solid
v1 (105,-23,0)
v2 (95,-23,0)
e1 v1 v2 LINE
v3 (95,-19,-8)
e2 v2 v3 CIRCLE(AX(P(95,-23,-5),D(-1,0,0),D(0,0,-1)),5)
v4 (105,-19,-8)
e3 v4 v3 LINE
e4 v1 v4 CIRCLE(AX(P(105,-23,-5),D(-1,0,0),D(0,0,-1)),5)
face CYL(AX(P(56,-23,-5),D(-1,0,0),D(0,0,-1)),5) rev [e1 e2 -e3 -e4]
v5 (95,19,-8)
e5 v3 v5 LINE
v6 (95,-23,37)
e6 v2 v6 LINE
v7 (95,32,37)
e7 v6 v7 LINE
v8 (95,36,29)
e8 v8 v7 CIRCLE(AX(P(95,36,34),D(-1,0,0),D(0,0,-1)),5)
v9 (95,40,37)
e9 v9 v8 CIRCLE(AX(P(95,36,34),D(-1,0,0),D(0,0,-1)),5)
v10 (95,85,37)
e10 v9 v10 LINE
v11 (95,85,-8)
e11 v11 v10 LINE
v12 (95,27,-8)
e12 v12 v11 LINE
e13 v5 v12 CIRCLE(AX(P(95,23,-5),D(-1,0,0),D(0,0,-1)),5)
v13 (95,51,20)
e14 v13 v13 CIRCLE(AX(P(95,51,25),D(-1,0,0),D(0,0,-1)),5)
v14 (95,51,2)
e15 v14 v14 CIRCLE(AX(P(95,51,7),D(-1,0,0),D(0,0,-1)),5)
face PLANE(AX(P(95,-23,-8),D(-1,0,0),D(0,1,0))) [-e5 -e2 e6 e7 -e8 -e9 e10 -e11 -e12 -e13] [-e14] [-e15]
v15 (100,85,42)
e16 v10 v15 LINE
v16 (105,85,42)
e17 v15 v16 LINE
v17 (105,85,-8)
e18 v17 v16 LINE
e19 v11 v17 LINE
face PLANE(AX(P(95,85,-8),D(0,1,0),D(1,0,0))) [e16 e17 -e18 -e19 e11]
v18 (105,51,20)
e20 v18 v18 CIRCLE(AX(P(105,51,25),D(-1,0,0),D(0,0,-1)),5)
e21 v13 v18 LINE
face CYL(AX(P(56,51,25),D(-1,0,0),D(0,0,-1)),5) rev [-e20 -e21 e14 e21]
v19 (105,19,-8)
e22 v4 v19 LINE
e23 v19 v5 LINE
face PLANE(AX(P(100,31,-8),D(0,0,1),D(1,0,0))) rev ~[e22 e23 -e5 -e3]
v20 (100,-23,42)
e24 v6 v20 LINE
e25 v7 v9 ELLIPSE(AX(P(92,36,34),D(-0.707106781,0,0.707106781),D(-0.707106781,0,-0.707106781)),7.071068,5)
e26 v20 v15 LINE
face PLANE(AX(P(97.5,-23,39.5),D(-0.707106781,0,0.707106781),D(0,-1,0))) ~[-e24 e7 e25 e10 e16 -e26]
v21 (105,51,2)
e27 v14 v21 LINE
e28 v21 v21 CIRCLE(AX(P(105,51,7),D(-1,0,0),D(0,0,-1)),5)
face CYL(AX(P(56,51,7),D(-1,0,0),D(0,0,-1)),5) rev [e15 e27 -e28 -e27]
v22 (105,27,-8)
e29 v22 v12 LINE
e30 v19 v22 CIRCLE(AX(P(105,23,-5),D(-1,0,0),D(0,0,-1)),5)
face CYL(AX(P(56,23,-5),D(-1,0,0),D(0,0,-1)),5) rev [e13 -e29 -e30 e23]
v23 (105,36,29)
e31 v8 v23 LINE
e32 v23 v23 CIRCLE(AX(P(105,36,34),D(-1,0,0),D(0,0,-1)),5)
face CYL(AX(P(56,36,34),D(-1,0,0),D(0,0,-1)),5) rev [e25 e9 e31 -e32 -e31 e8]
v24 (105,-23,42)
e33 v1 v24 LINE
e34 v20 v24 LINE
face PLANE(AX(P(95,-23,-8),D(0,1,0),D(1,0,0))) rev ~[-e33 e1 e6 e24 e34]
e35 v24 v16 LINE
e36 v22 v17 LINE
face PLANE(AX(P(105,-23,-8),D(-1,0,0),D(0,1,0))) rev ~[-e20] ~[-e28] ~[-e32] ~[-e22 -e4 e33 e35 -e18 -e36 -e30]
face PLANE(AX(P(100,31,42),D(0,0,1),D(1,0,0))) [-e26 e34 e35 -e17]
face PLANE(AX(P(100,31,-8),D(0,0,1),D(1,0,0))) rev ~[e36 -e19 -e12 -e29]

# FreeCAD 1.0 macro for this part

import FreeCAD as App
import Part
import Sketcher
from FreeCAD import Vector


def edges_at(feature, points):
    """Names of the edges that pass closest to the given points."""
    edges = feature.Shape.Edges
    near = lambda p: min(range(len(edges)), key=lambda i: edges[i].distToShape(Part.Vertex(*p))[0])
    return sorted({f"Edge{near(p) + 1}" for p in points})

doc = App.newDocument("Part")
body = doc.addObject("PartDesign::Body", "Body")

# Sketch on YZ plane
sketch1 = body.newObject("Sketcher::SketchObject", "Sketch")
sketch1.AttachmentSupport = (doc.getObject("YZ_Plane"), [""])
sketch1.MapMode = "FlatFace"
sketch1.AttachmentOffset = App.Placement(Vector(0, 0, 24), App.Rotation())
sketch1.addGeometry(Part.Circle(Vector(-51, 25, 0), Vector(0, 0, 1), 5), False)
sketch1.addConstraint(Sketcher.Constraint("Diameter", 0, 10.0))
sketch1.addConstraint(Sketcher.Constraint("DistanceX", 0, 3, -1, 1, 51.0))
sketch1.addConstraint(Sketcher.Constraint("DistanceY", -1, 1, 0, 3, 25.0))
pad1 = body.newObject("PartDesign::Pad", "Pad")
pad1.Profile = sketch1
pad1.Length = 100
body2 = doc.addObject("PartDesign::Body", "Body001")

# Sketch on YZ plane
sketch2 = body2.newObject("Sketcher::SketchObject", "Sketch001")
sketch2.AttachmentSupport = (doc.getObject("YZ_Plane001"), [""])
sketch2.MapMode = "FlatFace"
sketch2.AttachmentOffset = App.Placement(Vector(0, 0, 24), App.Rotation())
sketch2.addGeometry(Part.Circle(Vector(36, 34, 0), Vector(0, 0, 1), 5), False)
sketch2.addConstraint(Sketcher.Constraint("Diameter", 0, 10.0))
sketch2.addConstraint(Sketcher.Constraint("DistanceX", -1, 1, 0, 3, 36.0))
sketch2.addConstraint(Sketcher.Constraint("DistanceY", -1, 1, 0, 3, 34.0))
pad2 = body2.newObject("PartDesign::Pad", "Pad001")
pad2.Profile = sketch2
pad2.Length = 100
body3 = doc.addObject("PartDesign::Body", "Body002")

# Sketch on YZ plane
sketch3 = body3.newObject("Sketcher::SketchObject", "Sketch002")
sketch3.AttachmentSupport = (doc.getObject("YZ_Plane002"), [""])
sketch3.MapMode = "FlatFace"
sketch3.AttachmentOffset = App.Placement(Vector(0, 0, 24), App.Rotation())
sketch3.addGeometry(Part.Circle(Vector(-36, 34, 0), Vector(0, 0, 1), 5), False)
sketch3.addConstraint(Sketcher.Constraint("Diameter", 0, 10.0))
sketch3.addConstraint(Sketcher.Constraint("DistanceX", 0, 3, -1, 1, 36.0))
sketch3.addConstraint(Sketcher.Constraint("DistanceY", -1, 1, 0, 3, 34.0))
pad3 = body3.newObject("PartDesign::Pad", "Pad002")
pad3.Profile = sketch3
pad3.Length = 100
body4 = doc.addObject("PartDesign::Body", "Body003")

# Sketch on YZ plane
sketch4 = body4.newObject("Sketcher::SketchObject", "Sketch003")
sketch4.AttachmentSupport = (doc.getObject("YZ_Plane003"), [""])
sketch4.MapMode = "FlatFace"
sketch4.AttachmentOffset = App.Placement(Vector(0, 0, 24), App.Rotation())
sketch4.addGeometry(Part.Circle(Vector(-23, -5, 0), Vector(0, 0, 1), 5), False)
sketch4.addConstraint(Sketcher.Constraint("Diameter", 0, 10.0))
sketch4.addConstraint(Sketcher.Constraint("DistanceX", 0, 3, -1, 1, 23.0))
sketch4.addConstraint(Sketcher.Constraint("DistanceY", 0, 3, -1, 1, 5.0))
pad4 = body4.newObject("PartDesign::Pad", "Pad003")
pad4.Profile = sketch4
pad4.Length = 100
body5 = doc.addObject("PartDesign::Body", "Body004")

# Sketch on YZ plane
sketch5 = body5.newObject("Sketcher::SketchObject", "Sketch004")
sketch5.AttachmentSupport = (doc.getObject("YZ_Plane004"), [""])
sketch5.MapMode = "FlatFace"
sketch5.AttachmentOffset = App.Placement(Vector(0, 0, 24), App.Rotation())
sketch5.addGeometry(Part.Circle(Vector(51, 7, 0), Vector(0, 0, 1), 5), False)
sketch5.addConstraint(Sketcher.Constraint("Diameter", 0, 10.0))
sketch5.addConstraint(Sketcher.Constraint("DistanceX", -1, 1, 0, 3, 51.0))
sketch5.addConstraint(Sketcher.Constraint("DistanceY", -1, 1, 0, 3, 7.0))
pad5 = body5.newObject("PartDesign::Pad", "Pad004")
pad5.Profile = sketch5
pad5.Length = 100
body6 = doc.addObject("PartDesign::Body", "Body005")

# Sketch on YZ plane
sketch6 = body6.newObject("Sketcher::SketchObject", "Sketch005")
sketch6.AttachmentSupport = (doc.getObject("YZ_Plane005"), [""])
sketch6.MapMode = "FlatFace"
sketch6.AttachmentOffset = App.Placement(Vector(0, 0, 24), App.Rotation())
sketch6.addGeometry(Part.Circle(Vector(23, -5, 0), Vector(0, 0, 1), 5), False)
sketch6.addConstraint(Sketcher.Constraint("Diameter", 0, 10.0))
sketch6.addConstraint(Sketcher.Constraint("DistanceX", -1, 1, 0, 3, 23.0))
sketch6.addConstraint(Sketcher.Constraint("DistanceY", 0, 3, -1, 1, 5.0))
pad6 = body6.newObject("PartDesign::Pad", "Pad005")
pad6.Profile = sketch6
pad6.Length = 100
body7 = doc.addObject("PartDesign::Body", "Body006")

# Sketch on YZ plane
sketch7 = body7.newObject("Sketcher::SketchObject", "Sketch006")
sketch7.AttachmentSupport = (doc.getObject("YZ_Plane006"), [""])
sketch7.MapMode = "FlatFace"
sketch7.AttachmentOffset = App.Placement(Vector(0, 0, 24), App.Rotation())
sketch7.addGeometry(Part.Circle(Vector(-51, 7, 0), Vector(0, 0, 1), 5), False)
sketch7.addConstraint(Sketcher.Constraint("Diameter", 0, 10.0))
sketch7.addConstraint(Sketcher.Constraint("DistanceX", 0, 3, -1, 1, 51.0))
sketch7.addConstraint(Sketcher.Constraint("DistanceY", -1, 1, 0, 3, 7.0))
pad7 = body7.newObject("PartDesign::Pad", "Pad006")
pad7.Profile = sketch7
pad7.Length = 100
body8 = doc.addObject("PartDesign::Body", "Body007")
body8.AllowCompound = True

# Sketch on YZ plane
sketch8 = body8.newObject("Sketcher::SketchObject", "Sketch007")
sketch8.AttachmentSupport = (doc.getObject("YZ_Plane007"), [""])
sketch8.MapMode = "FlatFace"
sketch8.AttachmentOffset = App.Placement(Vector(0, 0, 24), App.Rotation())
sketch8.addGeometry(Part.Circle(Vector(51, 25, 0), Vector(0, 0, 1), 5), False)
sketch8.addConstraint(Sketcher.Constraint("Diameter", 0, 10.0))
sketch8.addConstraint(Sketcher.Constraint("DistanceX", -1, 1, 0, 3, 51.0))
sketch8.addConstraint(Sketcher.Constraint("DistanceY", -1, 1, 0, 3, 25.0))
pad8 = body8.newObject("PartDesign::Pad", "Pad007")
pad8.Profile = sketch8
pad8.Length = 100
doc.recompute()

boolean = body8.newObject("PartDesign::Boolean", "Boolean")
boolean.Type = "Fuse"
boolean.addObjects([body])
doc.recompute()

boolean2 = body8.newObject("PartDesign::Boolean", "Boolean001")
boolean2.Type = "Fuse"
boolean2.addObjects([body2])
doc.recompute()

boolean3 = body8.newObject("PartDesign::Boolean", "Boolean002")
boolean3.Type = "Fuse"
boolean3.addObjects([body3])
doc.recompute()

boolean4 = body8.newObject("PartDesign::Boolean", "Boolean003")
boolean4.Type = "Fuse"
boolean4.addObjects([body4])
doc.recompute()

boolean5 = body8.newObject("PartDesign::Boolean", "Boolean004")
boolean5.Type = "Fuse"
boolean5.addObjects([body5])
doc.recompute()

boolean6 = body8.newObject("PartDesign::Boolean", "Boolean005")
boolean6.Type = "Fuse"
boolean6.addObjects([body6])
doc.recompute()

boolean7 = body8.newObject("PartDesign::Boolean", "Boolean006")
boolean7.Type = "Fuse"
boolean7.addObjects([body7])
body9 = doc.addObject("PartDesign::Body", "Body008")
body9.AllowCompound = True
doc.recompute()

body8.Placement = App.Placement(Vector(32, 0, 0), App.Rotation(Vector(0, 0, 1), 0))
boolean8 = body9.newObject("PartDesign::Boolean", "Boolean007")
boolean8.Type = "Fuse"
boolean8.addObjects([body8])
body10 = doc.addObject("PartDesign::Body", "Body009")

# Sketch on XY plane
sketch9 = body10.newObject("Sketcher::SketchObject", "Sketch008")
sketch9.AttachmentSupport = (doc.getObject("XY_Plane009"), [""])
sketch9.MapMode = "FlatFace"
sketch9.AttachmentOffset = App.Placement(Vector(0, 0, -8), App.Rotation())
sketch9.addGeometry(Part.LineSegment(Vector(87, 79, 0), Vector(87, -29, 0)), False)
sketch9.addGeometry(Part.LineSegment(Vector(87, -29, 0), Vector(97, -29, 0)), False)
sketch9.addGeometry(Part.LineSegment(Vector(97, -29, 0), Vector(97, 79, 0)), False)
sketch9.addGeometry(Part.LineSegment(Vector(97, 79, 0), Vector(87, 79, 0)), False)
sketch9.addConstraint(Sketcher.Constraint("Coincident", 0, 2, 1, 1))
sketch9.addConstraint(Sketcher.Constraint("Coincident", 1, 2, 2, 1))
sketch9.addConstraint(Sketcher.Constraint("Coincident", 2, 2, 3, 1))
sketch9.addConstraint(Sketcher.Constraint("Coincident", 3, 2, 0, 1))
sketch9.addConstraint(Sketcher.Constraint("Vertical", 0))
sketch9.addConstraint(Sketcher.Constraint("Horizontal", 1))
sketch9.addConstraint(Sketcher.Constraint("Vertical", 2))
sketch9.addConstraint(Sketcher.Constraint("Horizontal", 3))
sketch9.addConstraint(Sketcher.Constraint("DistanceX", 1, 1, 1, 2, 10.0))
sketch9.addConstraint(Sketcher.Constraint("DistanceY", 0, 2, 0, 1, 108.0))
sketch9.addConstraint(Sketcher.Constraint("DistanceX", -1, 1, 0, 2, 87.0))
sketch9.addConstraint(Sketcher.Constraint("DistanceY", 0, 2, -1, 1, 29.0))
pad9 = body10.newObject("PartDesign::Pad", "Pad008")
pad9.Profile = sketch9
pad9.Length = 50
doc.recompute()

chamfer = body10.newObject("PartDesign::Chamfer", "Chamfer")
chamfer.Base = (pad9, edges_at(pad9, [(87, 25, 42)]))
chamfer.Size = 5
body11 = doc.addObject("PartDesign::Body", "Body010")
doc.recompute()

body10.Placement = App.Placement(Vector(8, 6, 0), App.Rotation(Vector(0, 0, 1), 0))
boolean9 = body11.newObject("PartDesign::Boolean", "Boolean008")
boolean9.Type = "Fuse"
boolean9.addObjects([body10])
doc.recompute()

boolean10 = body11.newObject("PartDesign::Boolean", "Boolean009")
boolean10.Type = "Cut"
boolean10.addObjects([body9])

doc.recompute()
